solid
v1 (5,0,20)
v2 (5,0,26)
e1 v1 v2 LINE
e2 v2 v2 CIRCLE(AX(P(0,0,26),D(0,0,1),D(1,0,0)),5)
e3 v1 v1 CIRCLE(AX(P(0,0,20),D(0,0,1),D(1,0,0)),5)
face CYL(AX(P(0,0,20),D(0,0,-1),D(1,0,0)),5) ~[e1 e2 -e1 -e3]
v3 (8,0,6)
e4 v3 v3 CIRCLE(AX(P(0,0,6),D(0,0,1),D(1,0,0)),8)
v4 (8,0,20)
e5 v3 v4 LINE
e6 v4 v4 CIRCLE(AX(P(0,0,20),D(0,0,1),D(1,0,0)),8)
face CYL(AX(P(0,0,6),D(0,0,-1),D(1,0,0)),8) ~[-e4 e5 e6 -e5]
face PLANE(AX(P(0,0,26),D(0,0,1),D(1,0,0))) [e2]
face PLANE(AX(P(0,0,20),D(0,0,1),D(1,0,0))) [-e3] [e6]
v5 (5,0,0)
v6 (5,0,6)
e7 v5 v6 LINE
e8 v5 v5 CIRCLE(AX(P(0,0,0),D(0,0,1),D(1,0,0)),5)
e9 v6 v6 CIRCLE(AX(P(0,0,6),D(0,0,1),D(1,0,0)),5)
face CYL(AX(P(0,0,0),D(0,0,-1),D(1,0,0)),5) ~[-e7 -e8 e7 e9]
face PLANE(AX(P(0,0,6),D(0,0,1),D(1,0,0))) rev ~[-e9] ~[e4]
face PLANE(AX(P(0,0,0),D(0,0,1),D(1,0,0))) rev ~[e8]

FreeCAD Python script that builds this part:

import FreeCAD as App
import Part
import Sketcher
from FreeCAD import Vector

doc = App.newDocument("Part")
params = doc.addObject("Spreadsheet::Sheet", "Params")
for row, (alias, value) in enumerate([
    ("sketch1_diameter", "10 mm"),
    ("pad1_length", "6 mm"),
    ("sketch2_diameter", "16 mm"),
    ("pad2_length", "14 mm"),
    ("sketch3_diameter", "10 mm"),
    ("pad3_length", "6 mm"),
], start=1):
    params.set(f"A{row}", alias)
    params.set(f"B{row}", "=" + value)
    params.setAlias(f"B{row}", alias)

body = doc.addObject("PartDesign::Body", "Body")

# Sketch on XY plane
sketch1 = doc.addObject("Sketcher::SketchObject", "Sketch")
body.addObject(sketch1)
sketch1.AttachmentSupport = (doc.XY_Plane, [""])
sketch1.MapMode = "FlatFace"
sketch1.addGeometry(Part.Circle(Vector(0, 0, 0), Vector(0, 0, 1), 5), False)
sketch1.addConstraint([
    Sketcher.Constraint("Coincident", 0, 3, -1, 1),
    Sketcher.Constraint("Diameter", 0, 10.0),
])
sketch1.setExpression("Constraints[1]", "Params.sketch1_diameter")
pad1 = doc.addObject("PartDesign::Pad", "Pad")
body.addObject(pad1)
pad1.Profile = sketch1
pad1.setExpression("Length", "Params.pad1_length")

# Sketch on XY plane
sketch2 = doc.addObject("Sketcher::SketchObject", "Sketch001")
body.addObject(sketch2)
sketch2.AttachmentSupport = (doc.XY_Plane, [""])
sketch2.MapMode = "FlatFace"
sketch2.AttachmentOffset = App.Placement(Vector(0, 0, 6), App.Rotation())
sketch2.addGeometry(Part.Circle(Vector(0, 0, 0), Vector(0, 0, 1), 8), False)
sketch2.addConstraint([
    Sketcher.Constraint("Coincident", 0, 3, -1, 1),
    Sketcher.Constraint("Diameter", 0, 16.0),
])
sketch2.setExpression("Constraints[1]", "Params.sketch2_diameter")
pad2 = doc.addObject("PartDesign::Pad", "Pad001")
body.addObject(pad2)
pad2.Profile = sketch2
pad2.setExpression("Length", "Params.pad2_length")

# Sketch on XY plane
sketch3 = doc.addObject("Sketcher::SketchObject", "Sketch002")
body.addObject(sketch3)
sketch3.AttachmentSupport = (doc.XY_Plane, [""])
sketch3.MapMode = "FlatFace"
sketch3.AttachmentOffset = App.Placement(Vector(0, 0, 20), App.Rotation())
sketch3.addGeometry(Part.Circle(Vector(0, 0, 0), Vector(0, 0, 1), 5), False)
sketch3.addConstraint([
    Sketcher.Constraint("Coincident", 0, 3, -1, 1),
    Sketcher.Constraint("Diameter", 0, 10.0),
])
sketch3.setExpression("Constraints[1]", "Params.sketch3_diameter")
pad3 = doc.addObject("PartDesign::Pad", "Pad002")
body.addObject(pad3)
pad3.Profile = sketch3
pad3.setExpression("Length", "Params.pad3_length")

doc.recompute()
